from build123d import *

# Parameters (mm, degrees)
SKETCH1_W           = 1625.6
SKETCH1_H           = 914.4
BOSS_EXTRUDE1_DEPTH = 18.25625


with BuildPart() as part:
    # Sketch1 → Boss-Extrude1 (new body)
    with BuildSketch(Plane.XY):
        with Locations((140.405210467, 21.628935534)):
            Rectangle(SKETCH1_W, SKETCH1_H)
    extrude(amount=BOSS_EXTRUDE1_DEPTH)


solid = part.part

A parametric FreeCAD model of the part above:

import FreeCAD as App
import Part
import Sketcher

V = App.Vector
Q = App.Units.Quantity


def add_polygon(sketch, points):
    """Adds a closed chain of lines whose ends are joined by coincident constraints."""
    first, n = sketch.GeometryCount, len(points)
    for a, b in zip(points, points[1:] + points[:1]):
        sketch.addGeometry(Part.LineSegment(App.Vector(*a, 0), App.Vector(*b, 0)), False)
    for i in range(n):
        sketch.addConstraint(Sketcher.Constraint("Coincident", first + i, 2, first + (i + 1) % n, 1))

doc = App.newDocument("Part")
params = doc.addObject("Spreadsheet::Sheet", "Params")
for row, (alias, value) in enumerate([
    ("sketch1_width", "64 in"),
    ("sketch1_height", "36 in"),
    ("pad1_length", "0.71875 in"),
], start=1):
    params.set(f"A{row}", alias)
    params.set(f"B{row}", "=" + value)
    params.setAlias(f"B{row}", alias)

body = doc.addObject("PartDesign::Body", "Body")

# Sketch on XY plane
sketch1 = body.newObject("Sketcher::SketchObject", "Sketch")
sketch1.AttachmentSupport = (doc.getObject("XY_Plane"), [""])
sketch1.MapMode = "FlatFace"
add_polygon(sketch1, [(-672.39479, 478.828936), (-672.39479, -435.571064), (953.20521, -435.571064), (953.20521, 478.828936)])  # lines 0-3
sketch1.addConstraint([
    Sketcher.Constraint("Vertical", 0),
    Sketcher.Constraint("Horizontal", 1),
    Sketcher.Constraint("Vertical", 2),
    Sketcher.Constraint("Horizontal", 3),
    Sketcher.Constraint("DistanceX", 1, 1, 1, 2, Q("64 in")),
    Sketcher.Constraint("DistanceY", 0, 2, 0, 1, Q("36 in")),
    Sketcher.Constraint("DistanceX", 0, 2, -1, 1, Q("672.39479 mm")),
    Sketcher.Constraint("DistanceY", 0, 2, -1, 1, Q("435.571064 mm")),
])
sketch1.setExpression("Constraints[8]", "Params.sketch1_width")
sketch1.setExpression("Constraints[9]", "Params.sketch1_height")
pad1 = body.newObject("PartDesign::Pad", "Pad")
pad1.Profile = sketch1
pad1.setExpression("Length", "Params.pad1_length")

doc.recompute()
